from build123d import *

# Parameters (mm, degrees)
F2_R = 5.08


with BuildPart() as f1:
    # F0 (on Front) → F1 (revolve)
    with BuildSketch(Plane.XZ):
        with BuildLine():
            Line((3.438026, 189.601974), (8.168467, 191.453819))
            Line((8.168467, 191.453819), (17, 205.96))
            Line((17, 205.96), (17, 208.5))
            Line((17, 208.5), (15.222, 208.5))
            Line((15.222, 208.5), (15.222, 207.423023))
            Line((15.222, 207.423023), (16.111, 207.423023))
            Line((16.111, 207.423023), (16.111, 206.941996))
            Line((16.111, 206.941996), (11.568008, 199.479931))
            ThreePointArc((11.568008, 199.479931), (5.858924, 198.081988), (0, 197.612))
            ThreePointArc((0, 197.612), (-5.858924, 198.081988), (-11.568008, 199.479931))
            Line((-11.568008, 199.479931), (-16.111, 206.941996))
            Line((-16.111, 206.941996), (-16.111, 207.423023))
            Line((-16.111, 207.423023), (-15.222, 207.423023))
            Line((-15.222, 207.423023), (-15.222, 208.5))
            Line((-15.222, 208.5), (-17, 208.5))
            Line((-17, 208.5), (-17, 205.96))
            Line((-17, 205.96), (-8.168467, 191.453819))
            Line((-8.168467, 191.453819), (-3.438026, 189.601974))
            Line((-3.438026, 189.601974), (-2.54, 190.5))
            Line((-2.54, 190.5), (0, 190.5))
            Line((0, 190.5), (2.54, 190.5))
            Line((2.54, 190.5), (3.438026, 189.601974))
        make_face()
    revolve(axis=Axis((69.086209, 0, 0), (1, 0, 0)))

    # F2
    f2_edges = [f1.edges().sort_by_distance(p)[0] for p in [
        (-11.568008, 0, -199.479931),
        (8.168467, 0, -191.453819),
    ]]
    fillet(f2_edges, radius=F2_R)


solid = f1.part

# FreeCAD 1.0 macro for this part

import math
import FreeCAD as App
import Part
import Sketcher
from FreeCAD import Vector
Q = App.Units.Quantity


def edges_at(feature, points):
    """Names of the edges that pass closest to the given points."""
    edges = feature.Shape.Edges
    near = lambda p: min(range(len(edges)), key=lambda i: edges[i].distToShape(Part.Vertex(*p))[0])
    return sorted({f"Edge{near(p) + 1}" for p in points})

doc = App.newDocument("Part")
body = doc.addObject("PartDesign::Body", "Body")

# Sketch on XZ plane
sketch1 = body.newObject("Sketcher::SketchObject", "Sketch")
sketch1.AttachmentSupport = (doc.getObject("XZ_Plane"), [""])
sketch1.MapMode = "FlatFace"
sketch1.addGeometry(Part.LineSegment(Vector(3.44, 189.6, 0), Vector(8.17, 191.45, 0)), False)
sketch1.addGeometry(Part.LineSegment(Vector(8.17, 191.45, 0), Vector(17, 205.96, 0)), False)
sketch1.addGeometry(Part.LineSegment(Vector(17, 205.96, 0), Vector(17, 208.5, 0)), False)
sketch1.addGeometry(Part.LineSegment(Vector(17, 208.5, 0), Vector(15.22, 208.5, 0)), False)
sketch1.addGeometry(Part.LineSegment(Vector(15.22, 208.5, 0), Vector(15.22, 207.42, 0)), False)
sketch1.addGeometry(Part.LineSegment(Vector(15.22, 207.42, 0), Vector(16.11, 207.42, 0)), False)
sketch1.addGeometry(Part.LineSegment(Vector(16.11, 207.42, 0), Vector(16.11, 206.94, 0)), False)
sketch1.addGeometry(Part.LineSegment(Vector(16.11, 206.94, 0), Vector(11.57, 199.48, 0)), False)
sketch1.addGeometry(Part.ArcOfCircle(Part.Circle(Vector(0, 234.37, 0), Vector(0, 0, 1), 36.75), math.radians(-90), math.radians(-71.65)), False)
sketch1.addGeometry(Part.ArcOfCircle(Part.Circle(Vector(0, 234.37, 0), Vector(0, 0, 1), 36.75), math.radians(-108.35), math.radians(-90)), False)
sketch1.addGeometry(Part.LineSegment(Vector(-11.57, 199.48, 0), Vector(-16.11, 206.94, 0)), False)
sketch1.addGeometry(Part.LineSegment(Vector(-16.11, 206.94, 0), Vector(-16.11, 207.42, 0)), False)
sketch1.addGeometry(Part.LineSegment(Vector(-16.11, 207.42, 0), Vector(-15.22, 207.42, 0)), False)
sketch1.addGeometry(Part.LineSegment(Vector(-15.22, 207.42, 0), Vector(-15.22, 208.5, 0)), False)
sketch1.addGeometry(Part.LineSegment(Vector(-15.22, 208.5, 0), Vector(-17, 208.5, 0)), False)
sketch1.addGeometry(Part.LineSegment(Vector(-17, 208.5, 0), Vector(-17, 205.96, 0)), False)
sketch1.addGeometry(Part.LineSegment(Vector(-17, 205.96, 0), Vector(-8.17, 191.45, 0)), False)
sketch1.addGeometry(Part.LineSegment(Vector(-8.17, 191.45, 0), Vector(-3.44, 189.6, 0)), False)
sketch1.addGeometry(Part.LineSegment(Vector(-3.44, 189.6, 0), Vector(-2.54, 190.5, 0)), False)
sketch1.addGeometry(Part.LineSegment(Vector(-2.54, 190.5, 0), Vector(2.54, 190.5, 0)), False)
sketch1.addGeometry(Part.LineSegment(Vector(2.54, 190.5, 0), Vector(3.44, 189.6, 0)), False)
sketch1.addConstraint(Sketcher.Constraint("Coincident", 0, 2, 1, 1))
sketch1.addConstraint(Sketcher.Constraint("Coincident", 1, 2, 2, 1))
sketch1.addConstraint(Sketcher.Constraint("Coincident", 2, 2, 3, 1))
sketch1.addConstraint(Sketcher.Constraint("Coincident", 3, 2, 4, 1))
sketch1.addConstraint(Sketcher.Constraint("Coincident", 4, 2, 5, 1))
sketch1.addConstraint(Sketcher.Constraint("Coincident", 5, 2, 6, 1))
sketch1.addConstraint(Sketcher.Constraint("Coincident", 6, 2, 7, 1))
sketch1.addConstraint(Sketcher.Constraint("Coincident", 7, 2, 8, 2))
sketch1.addConstraint(Sketcher.Constraint("Tangent", 8, 1, 9, 2))
sketch1.addConstraint(Sketcher.Constraint("Coincident", 9, 1, 10, 1))
sketch1.addConstraint(Sketcher.Constraint("Coincident", 10, 2, 11, 1))
sketch1.addConstraint(Sketcher.Constraint("Coincident", 11, 2, 12, 1))
sketch1.addConstraint(Sketcher.Constraint("Coincident", 12, 2, 13, 1))
sketch1.addConstraint(Sketcher.Constraint("Coincident", 13, 2, 14, 1))
sketch1.addConstraint(Sketcher.Constraint("Coincident", 14, 2, 15, 1))
sketch1.addConstraint(Sketcher.Constraint("Coincident", 15, 2, 16, 1))
sketch1.addConstraint(Sketcher.Constraint("Coincident", 16, 2, 17, 1))
sketch1.addConstraint(Sketcher.Constraint("Coincident", 17, 2, 18, 1))
sketch1.addConstraint(Sketcher.Constraint("Coincident", 18, 2, 19, 1))
sketch1.addConstraint(Sketcher.Constraint("Coincident", 19, 2, 20, 1))
sketch1.addConstraint(Sketcher.Constraint("Coincident", 20, 2, 0, 1))
sketch1.addConstraint(Sketcher.Constraint("Vertical", 2))
sketch1.addConstraint(Sketcher.Constraint("Horizontal", 3))
sketch1.addConstraint(Sketcher.Constraint("Vertical", 4))
sketch1.addConstraint(Sketcher.Constraint("Horizontal", 5))
sketch1.addConstraint(Sketcher.Constraint("Vertical", 6))
sketch1.addConstraint(Sketcher.Constraint("Vertical", 11))
sketch1.addConstraint(Sketcher.Constraint("Horizontal", 12))
sketch1.addConstraint(Sketcher.Constraint("Vertical", 13))
sketch1.addConstraint(Sketcher.Constraint("Horizontal", 14))
sketch1.addConstraint(Sketcher.Constraint("Vertical", 15))
sketch1.addConstraint(Sketcher.Constraint("Horizontal", 19))
sketch1.addConstraint(Sketcher.Constraint("Equal", 8, 9))
sketch1.addConstraint(Sketcher.Constraint("Symmetric", 7, 2, 9, 1, -2))
sketch1.addConstraint(Sketcher.Constraint("Symmetric", 6, 2, 10, 2, -2))
sketch1.addConstraint(Sketcher.Constraint("Symmetric", 4, 2, 12, 2, -2))
sketch1.addConstraint(Sketcher.Constraint("Symmetric", 2, 2, 14, 2, -2))
sketch1.addConstraint(Sketcher.Constraint("Symmetric", 0, 2, 16, 2, -2))
sketch1.addConstraint(Sketcher.Constraint("Symmetric", 17, 2, 20, 2, -2))
sketch1.addConstraint(Sketcher.Constraint("PointOnObject", 8, 1, -2))
sketch1.addConstraint(Sketcher.Constraint("Parallel", 1, 7))
sketch1.addConstraint(Sketcher.Constraint("Parallel", 10, 16))
sketch1.addConstraint(Sketcher.Constraint("Perpendicular", 18, 20))
sketch1.addConstraint(Sketcher.Constraint("Equal", 18, 20))
sketch1.addConstraint(Sketcher.Constraint("DistanceX", 19, 1, 19, 2, Q("0.2 in")))
sketch1.addConstraint(Sketcher.Constraint("DistanceY", 2, 1, 2, 2, Q("0.1 in")))
sketch1.addConstraint(Sketcher.Constraint("Distance", 0, Q("0.2 in")))
sketch1.addConstraint(Sketcher.Constraint("DistanceX", 3, 2, 3, 1, Q("0.07 in")))
sketch1.addConstraint(Sketcher.Constraint("DistanceY", -1, 1, 18, 2, Q("7.5 in")))
sketch1.addConstraint(Sketcher.Constraint("Distance", 18, Q("0.05 in")))
sketch1.addConstraint(Sketcher.Constraint("DistanceX", 5, 1, 5, 2, Q("0.035 in")))
sketch1.addConstraint(Sketcher.Constraint("DistanceY", -1, 1, 8, 1, Q("7.78 in")))
sketch1.addConstraint(Sketcher.Constraint("Radius", 8, 36.754054))
sketch1.addConstraint(Sketcher.Constraint("Distance", 7, 8.7362))
sketch1.addConstraint(Sketcher.Constraint("DistanceX", -1, 1, 1, 2, 17.0))
sketch1.addConstraint(Sketcher.Constraint("DistanceY", -1, 1, 1, 2, 205.96))
sketch1.addConstraint(Sketcher.Constraint("DistanceY", 4, 2, 4, 1, 1.076977))
sketch1.addConstraint(Sketcher.Constraint("DistanceY", 6, 2, 6, 1, 0.481027))
revolution = body.newObject("PartDesign::Revolution", "Revolution")
revolution.Profile = sketch1
revolution.ReferenceAxis = (sketch1, ["H_Axis"])
revolution.Angle = 360
doc.recompute()

fillet = body.newObject("PartDesign::Fillet", "Fillet")
fillet.Base = (revolution, edges_at(revolution, [(-11.568, 0, -199.48), (8.168, 0, -191.454)]))
fillet.Radius = Q("0.2 in")

doc.recompute()
